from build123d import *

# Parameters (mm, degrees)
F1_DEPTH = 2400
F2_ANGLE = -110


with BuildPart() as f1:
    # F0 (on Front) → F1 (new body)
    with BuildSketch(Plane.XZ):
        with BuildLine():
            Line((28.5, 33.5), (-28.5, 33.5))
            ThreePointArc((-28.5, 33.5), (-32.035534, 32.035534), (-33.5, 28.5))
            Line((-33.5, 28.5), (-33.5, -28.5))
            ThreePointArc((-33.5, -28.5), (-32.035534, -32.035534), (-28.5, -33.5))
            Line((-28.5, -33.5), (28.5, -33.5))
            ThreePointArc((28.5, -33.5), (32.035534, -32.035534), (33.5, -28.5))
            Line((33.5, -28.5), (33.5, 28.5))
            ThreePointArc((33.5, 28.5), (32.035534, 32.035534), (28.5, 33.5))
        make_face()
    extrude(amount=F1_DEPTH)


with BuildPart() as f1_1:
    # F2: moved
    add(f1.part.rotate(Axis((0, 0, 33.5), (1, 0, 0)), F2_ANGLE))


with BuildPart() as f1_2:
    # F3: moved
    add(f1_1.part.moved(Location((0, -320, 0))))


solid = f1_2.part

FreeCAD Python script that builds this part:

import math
import FreeCAD as App
import Part
import Sketcher

V = App.Vector
Q = App.Units.Quantity

doc = App.newDocument("Part")
body = doc.addObject("PartDesign::Body", "Body")

sketch1 = body.newObject("Sketcher::SketchObject", "Sketch")
sketch1.AttachmentSupport = (doc.getObject("XZ_Plane"), [""])
sketch1.MapMode = "FlatFace"
sketch1.addGeometry(Part.LineSegment(V(28.5, 33.5, 0), V(-28.5, 33.5, 0)), False)
sketch1.addGeometry(Part.ArcOfCircle(Part.Circle(V(-28.5, 28.5, 0), V(0, 0, 1), 5), math.radians(90), math.radians(180)), False)
sketch1.addGeometry(Part.LineSegment(V(-33.5, 28.5, 0), V(-33.5, -28.5, 0)), False)
sketch1.addGeometry(Part.ArcOfCircle(Part.Circle(V(-28.5, -28.5, 0), V(0, 0, 1), 5), math.radians(180), math.radians(270)), False)
sketch1.addGeometry(Part.LineSegment(V(-28.5, -33.5, 0), V(28.5, -33.5, 0)), False)
sketch1.addGeometry(Part.ArcOfCircle(Part.Circle(V(28.5, -28.5, 0), V(0, 0, 1), 5), math.radians(-90), math.radians(0)), False)
sketch1.addGeometry(Part.LineSegment(V(33.5, -28.5, 0), V(33.5, 28.5, 0)), False)
sketch1.addGeometry(Part.ArcOfCircle(Part.Circle(V(28.5, 28.5, 0), V(0, 0, 1), 5), math.radians(0), math.radians(90)), False)
sketch1.addConstraint(Sketcher.Constraint("Tangent", 0, 2, 1, 1))
sketch1.addConstraint(Sketcher.Constraint("Tangent", 1, 2, 2, 1))
sketch1.addConstraint(Sketcher.Constraint("Tangent", 2, 2, 3, 1))
sketch1.addConstraint(Sketcher.Constraint("Tangent", 3, 2, 4, 1))
sketch1.addConstraint(Sketcher.Constraint("Tangent", 4, 2, 5, 1))
sketch1.addConstraint(Sketcher.Constraint("Tangent", 5, 2, 6, 1))
sketch1.addConstraint(Sketcher.Constraint("Tangent", 6, 2, 7, 1))
sketch1.addConstraint(Sketcher.Constraint("Tangent", 7, 2, 0, 1))
sketch1.addConstraint(Sketcher.Constraint("Horizontal", 0))
sketch1.addConstraint(Sketcher.Constraint("Vertical", 2))
sketch1.addConstraint(Sketcher.Constraint("Horizontal", 4))
sketch1.addConstraint(Sketcher.Constraint("Vertical", 6))
sketch1.addConstraint(Sketcher.Constraint("Equal", 1, 3))
sketch1.addConstraint(Sketcher.Constraint("Equal", 3, 5))
sketch1.addConstraint(Sketcher.Constraint("Equal", 5, 7))
sketch1.addConstraint(Sketcher.Constraint("Symmetric", 1, 3, 5, 3, -1, 1))
sketch1.addConstraint(Sketcher.Constraint("Equal", 4, 2))
sketch1.addConstraint(Sketcher.Constraint("Radius", 1, Q("5 mm")))
sketch1.addConstraint(Sketcher.Constraint("DistanceX", 0, 2, 0, 1, Q("57 mm")))
pad1 = body.newObject("PartDesign::Pad", "Pad")
pad1.Profile = sketch1
pad1.Length = 2400
body2 = doc.addObject("PartDesign::Body", "Body001")
doc.recompute()

body.Placement = App.Placement(V(0, -31.479703, 44.957675), App.Rotation(V(1, 0, 0), 250))
boolean = body2.newObject("PartDesign::Boolean", "Boolean")
boolean.Type = "Fuse"
boolean.addObjects([body])
body3 = doc.addObject("PartDesign::Body", "Body002")
doc.recompute()

body2.Placement = App.Placement(V(0, -320, 0), App.Rotation(V(0, 0, 1), 0))
boolean2 = body3.newObject("PartDesign::Boolean", "Boolean001")
boolean2.Type = "Fuse"
boolean2.addObjects([body2])

doc.recompute()
